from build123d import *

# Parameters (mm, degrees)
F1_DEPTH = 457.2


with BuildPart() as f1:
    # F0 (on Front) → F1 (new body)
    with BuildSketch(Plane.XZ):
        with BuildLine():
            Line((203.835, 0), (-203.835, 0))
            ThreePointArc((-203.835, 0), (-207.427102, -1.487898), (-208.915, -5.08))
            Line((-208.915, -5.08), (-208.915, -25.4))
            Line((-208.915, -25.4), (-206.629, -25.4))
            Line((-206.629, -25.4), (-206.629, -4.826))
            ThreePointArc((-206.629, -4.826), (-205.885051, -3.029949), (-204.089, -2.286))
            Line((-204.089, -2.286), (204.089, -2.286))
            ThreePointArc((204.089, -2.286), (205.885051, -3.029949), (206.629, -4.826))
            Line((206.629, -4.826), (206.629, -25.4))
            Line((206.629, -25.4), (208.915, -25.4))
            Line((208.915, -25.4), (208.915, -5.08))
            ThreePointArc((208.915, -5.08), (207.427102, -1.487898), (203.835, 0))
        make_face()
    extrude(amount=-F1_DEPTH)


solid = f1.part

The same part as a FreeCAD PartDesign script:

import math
import FreeCAD as App
import Part
import Sketcher
from FreeCAD import Vector
Q = App.Units.Quantity

doc = App.newDocument("Part")
body = doc.addObject("PartDesign::Body", "Body")

# Sketch on XZ plane
sketch1 = body.newObject("Sketcher::SketchObject", "Sketch")
sketch1.AttachmentSupport = (doc.getObject("XZ_Plane"), [""])
sketch1.MapMode = "FlatFace"
sketch1.addGeometry(Part.LineSegment(Vector(203.8, 0, 0), Vector(-203.8, 0, 0)), False)
sketch1.addGeometry(Part.ArcOfCircle(Part.Circle(Vector(-203.8, -5.1, 0), Vector(0, 0, 1), 5.1), math.radians(90), math.radians(180)), False)
sketch1.addGeometry(Part.LineSegment(Vector(-208.9, -5.1, 0), Vector(-208.9, -25.4, 0)), False)
sketch1.addGeometry(Part.LineSegment(Vector(-208.9, -25.4, 0), Vector(-206.6, -25.4, 0)), False)
sketch1.addGeometry(Part.LineSegment(Vector(-206.6, -25.4, 0), Vector(-206.6, -4.8, 0)), False)
sketch1.addGeometry(Part.ArcOfCircle(Part.Circle(Vector(-204.1, -4.8, 0), Vector(0, 0, 1), 2.5), math.radians(90), math.radians(180)), False)
sketch1.addGeometry(Part.LineSegment(Vector(-204.1, -2.3, 0), Vector(204.1, -2.3, 0)), False)
sketch1.addGeometry(Part.ArcOfCircle(Part.Circle(Vector(204.1, -4.8, 0), Vector(0, 0, 1), 2.5), math.radians(0), math.radians(90)), False)
sketch1.addGeometry(Part.LineSegment(Vector(206.6, -4.8, 0), Vector(206.6, -25.4, 0)), False)
sketch1.addGeometry(Part.LineSegment(Vector(206.6, -25.4, 0), Vector(208.9, -25.4, 0)), False)
sketch1.addGeometry(Part.LineSegment(Vector(208.9, -25.4, 0), Vector(208.9, -5.1, 0)), False)
sketch1.addGeometry(Part.ArcOfCircle(Part.Circle(Vector(203.8, -5.1, 0), Vector(0, 0, 1), 5.1), math.radians(0), math.radians(90)), False)
sketch1.addConstraint(Sketcher.Constraint("Tangent", 0, 2, 1, 1))
sketch1.addConstraint(Sketcher.Constraint("Tangent", 1, 2, 2, 1))
sketch1.addConstraint(Sketcher.Constraint("Coincident", 2, 2, 3, 1))
sketch1.addConstraint(Sketcher.Constraint("Coincident", 3, 2, 4, 1))
sketch1.addConstraint(Sketcher.Constraint("Tangent", 4, 2, 5, 2))
sketch1.addConstraint(Sketcher.Constraint("Tangent", 5, 1, 6, 1))
sketch1.addConstraint(Sketcher.Constraint("Tangent", 6, 2, 7, 2))
sketch1.addConstraint(Sketcher.Constraint("Tangent", 7, 1, 8, 1))
sketch1.addConstraint(Sketcher.Constraint("Coincident", 8, 2, 9, 1))
sketch1.addConstraint(Sketcher.Constraint("Coincident", 9, 2, 10, 1))
sketch1.addConstraint(Sketcher.Constraint("Tangent", 10, 2, 11, 1))
sketch1.addConstraint(Sketcher.Constraint("Tangent", 11, 2, 0, 1))
sketch1.addConstraint(Sketcher.Constraint("Horizontal", 0))
sketch1.addConstraint(Sketcher.Constraint("Vertical", 2))
sketch1.addConstraint(Sketcher.Constraint("Horizontal", 3))
sketch1.addConstraint(Sketcher.Constraint("Vertical", 4))
sketch1.addConstraint(Sketcher.Constraint("Horizontal", 6))
sketch1.addConstraint(Sketcher.Constraint("Vertical", 8))
sketch1.addConstraint(Sketcher.Constraint("Horizontal", 9))
sketch1.addConstraint(Sketcher.Constraint("Vertical", 10))
sketch1.addConstraint(Sketcher.Constraint("Equal", 5, 7))
sketch1.addConstraint(Sketcher.Constraint("Equal", 1, 11))
sketch1.addConstraint(Sketcher.Constraint("Symmetric", 0, 2, 11, 2, -1, 1))
sketch1.addConstraint(Sketcher.Constraint("Symmetric", 3, 2, 8, 2, -2))
sketch1.addConstraint(Sketcher.Constraint("Radius", 1, Q("0.2000001 in")))
sketch1.addConstraint(Sketcher.Constraint("Radius", 5, Q("0.1 in")))
sketch1.addConstraint(Sketcher.Constraint("DistanceY", 2, 2, 2, 1, Q("0.8 in")))
sketch1.addConstraint(Sketcher.Constraint("DistanceX", 0, 2, 0, 1, Q("16.05 in")))
sketch1.addConstraint(Sketcher.Constraint("DistanceX", 3, 1, 3, 2, Q("0.09 in")))
sketch1.addConstraint(Sketcher.Constraint("DistanceY", 4, 1, 4, 2, Q("0.81 in")))
pad1 = body.newObject("PartDesign::Pad", "Pad")
pad1.Profile = sketch1
pad1.Length = Q("18 in")
pad1.Reversed = True

doc.recompute()
